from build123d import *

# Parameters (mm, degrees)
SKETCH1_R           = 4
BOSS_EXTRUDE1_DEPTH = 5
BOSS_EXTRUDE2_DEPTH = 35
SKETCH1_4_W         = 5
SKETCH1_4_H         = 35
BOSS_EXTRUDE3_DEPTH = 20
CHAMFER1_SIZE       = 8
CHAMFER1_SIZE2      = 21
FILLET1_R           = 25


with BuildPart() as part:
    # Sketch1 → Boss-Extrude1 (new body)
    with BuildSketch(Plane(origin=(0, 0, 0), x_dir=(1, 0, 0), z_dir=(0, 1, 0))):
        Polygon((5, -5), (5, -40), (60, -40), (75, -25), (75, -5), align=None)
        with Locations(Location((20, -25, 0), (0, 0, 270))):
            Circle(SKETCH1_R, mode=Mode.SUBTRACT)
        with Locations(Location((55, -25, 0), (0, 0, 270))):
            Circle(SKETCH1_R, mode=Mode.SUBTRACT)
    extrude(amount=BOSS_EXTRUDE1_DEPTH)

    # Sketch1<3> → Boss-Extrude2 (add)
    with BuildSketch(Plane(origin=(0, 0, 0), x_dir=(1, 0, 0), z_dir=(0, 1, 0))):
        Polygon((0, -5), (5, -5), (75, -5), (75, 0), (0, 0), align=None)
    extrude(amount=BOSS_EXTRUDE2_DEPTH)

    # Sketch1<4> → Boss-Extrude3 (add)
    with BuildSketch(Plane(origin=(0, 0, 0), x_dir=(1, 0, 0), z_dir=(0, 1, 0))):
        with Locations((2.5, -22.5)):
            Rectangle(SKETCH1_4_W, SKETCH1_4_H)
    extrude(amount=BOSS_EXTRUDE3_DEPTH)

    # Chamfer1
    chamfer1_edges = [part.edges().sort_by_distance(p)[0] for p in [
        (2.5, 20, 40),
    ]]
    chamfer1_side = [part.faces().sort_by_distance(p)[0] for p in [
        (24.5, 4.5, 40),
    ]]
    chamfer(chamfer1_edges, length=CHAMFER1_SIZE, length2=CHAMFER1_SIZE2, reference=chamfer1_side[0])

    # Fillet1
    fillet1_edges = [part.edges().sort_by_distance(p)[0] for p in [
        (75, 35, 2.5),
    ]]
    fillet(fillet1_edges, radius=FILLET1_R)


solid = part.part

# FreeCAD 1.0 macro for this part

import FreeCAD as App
import Part
import Sketcher
from FreeCAD import Vector


def edges_at(feature, points):
    """Names of the edges that pass closest to the given points."""
    edges = feature.Shape.Edges
    near = lambda p: min(range(len(edges)), key=lambda i: edges[i].distToShape(Part.Vertex(*p))[0])
    return sorted({f"Edge{near(p) + 1}" for p in points})

doc = App.newDocument("Part")
body = doc.addObject("PartDesign::Body", "Body")

# Sketch on XZ plane
sketch1 = doc.addObject("Sketcher::SketchObject", "Sketch")
body.addObject(sketch1)
sketch1.AttachmentSupport = (doc.XZ_Plane, [""])
sketch1.MapMode = "FlatFace"
sketch1.addGeometry(Part.LineSegment(Vector(5, 5, 0), Vector(5, 40, 0)), False)
sketch1.addGeometry(Part.LineSegment(Vector(5, 40, 0), Vector(60, 40, 0)), False)
sketch1.addGeometry(Part.LineSegment(Vector(60, 40, 0), Vector(75, 25, 0)), False)
sketch1.addGeometry(Part.LineSegment(Vector(75, 25, 0), Vector(75, 5, 0)), False)
sketch1.addGeometry(Part.LineSegment(Vector(75, 5, 0), Vector(5, 5, 0)), False)
sketch1.addGeometry(Part.Circle(Vector(20, 25, 0), Vector(0, 0, 1), 4), False)
sketch1.addGeometry(Part.Circle(Vector(55, 25, 0), Vector(0, 0, 1), 4), False)
sketch1.addConstraint(Sketcher.Constraint("Coincident", 0, 2, 1, 1))
sketch1.addConstraint(Sketcher.Constraint("Coincident", 1, 2, 2, 1))
sketch1.addConstraint(Sketcher.Constraint("Coincident", 2, 2, 3, 1))
sketch1.addConstraint(Sketcher.Constraint("Coincident", 3, 2, 4, 1))
sketch1.addConstraint(Sketcher.Constraint("Coincident", 4, 2, 0, 1))
sketch1.addConstraint(Sketcher.Constraint("Vertical", 0))
sketch1.addConstraint(Sketcher.Constraint("Horizontal", 1))
sketch1.addConstraint(Sketcher.Constraint("Vertical", 3))
sketch1.addConstraint(Sketcher.Constraint("Horizontal", 4))
sketch1.addConstraint(Sketcher.Constraint("Equal", 5, 6))
sketch1.addConstraint(Sketcher.Constraint("Horizontal", 5, 3, 6, 3))
sketch1.addConstraint(Sketcher.Constraint("Horizontal", 6, 3, 2, 2))
sketch1.addConstraint(Sketcher.Constraint("Diameter", 5, 8.0))
sketch1.addConstraint(Sketcher.Constraint("DistanceX", 1, 1, 1, 2, 55.0))
sketch1.addConstraint(Sketcher.Constraint("DistanceX", 4, 2, 4, 1, 70.0))
sketch1.addConstraint(Sketcher.Constraint("DistanceY", 0, 1, 0, 2, 35.0))
sketch1.addConstraint(Sketcher.Constraint("DistanceY", 3, 2, 3, 1, 20.0))
sketch1.addConstraint(Sketcher.Constraint("DistanceX", -1, 1, 5, 3, 20.0))
sketch1.addConstraint(Sketcher.Constraint("DistanceY", -1, 1, 5, 3, 25.0))
sketch1.addConstraint(Sketcher.Constraint("DistanceX", -1, 1, 6, 3, 55.0))
sketch1.addConstraint(Sketcher.Constraint("DistanceX", -1, 1, 0, 2, 5.0))
pad1 = doc.addObject("PartDesign::Pad", "Pad")
body.addObject(pad1)
pad1.Profile = sketch1
pad1.Length = 5
pad1.Reversed = True

# Sketch on XZ plane
sketch2 = doc.addObject("Sketcher::SketchObject", "Sketch001")
body.addObject(sketch2)
sketch2.AttachmentSupport = (doc.XZ_Plane, [""])
sketch2.MapMode = "FlatFace"
sketch2.addGeometry(Part.LineSegment(Vector(0, 5, 0), Vector(75, 5, 0)), False)
sketch2.addGeometry(Part.LineSegment(Vector(75, 5, 0), Vector(75, 0, 0)), False)
sketch2.addGeometry(Part.LineSegment(Vector(75, 0, 0), Vector(0, 0, 0)), False)
sketch2.addGeometry(Part.LineSegment(Vector(0, 0, 0), Vector(0, 5, 0)), False)
sketch2.addConstraint(Sketcher.Constraint("Coincident", 0, 2, 1, 1))
sketch2.addConstraint(Sketcher.Constraint("Coincident", 1, 2, 2, 1))
sketch2.addConstraint(Sketcher.Constraint("Coincident", 2, 2, 3, 1))
sketch2.addConstraint(Sketcher.Constraint("Coincident", 3, 2, 0, 1))
sketch2.addConstraint(Sketcher.Constraint("Horizontal", 0))
sketch2.addConstraint(Sketcher.Constraint("Vertical", 1))
sketch2.addConstraint(Sketcher.Constraint("Horizontal", 2))
sketch2.addConstraint(Sketcher.Constraint("Vertical", 3))
sketch2.addConstraint(Sketcher.Constraint("Coincident", 2, 2, -1, 1))
sketch2.addConstraint(Sketcher.Constraint("DistanceX", 0, 1, 0, 2, 75.0))
sketch2.addConstraint(Sketcher.Constraint("DistanceY", 1, 2, 1, 1, 5.0))
pad2 = doc.addObject("PartDesign::Pad", "Pad001")
body.addObject(pad2)
pad2.Profile = sketch2
pad2.Length = 35
pad2.Reversed = True

# Sketch on XZ plane
sketch3 = doc.addObject("Sketcher::SketchObject", "Sketch002")
body.addObject(sketch3)
sketch3.AttachmentSupport = (doc.XZ_Plane, [""])
sketch3.MapMode = "FlatFace"
sketch3.addGeometry(Part.LineSegment(Vector(0, 5, 0), Vector(0, 40, 0)), False)
sketch3.addGeometry(Part.LineSegment(Vector(0, 40, 0), Vector(5, 40, 0)), False)
sketch3.addGeometry(Part.LineSegment(Vector(5, 40, 0), Vector(5, 5, 0)), False)
sketch3.addGeometry(Part.LineSegment(Vector(5, 5, 0), Vector(0, 5, 0)), False)
sketch3.addConstraint(Sketcher.Constraint("Coincident", 0, 2, 1, 1))
sketch3.addConstraint(Sketcher.Constraint("Coincident", 1, 2, 2, 1))
sketch3.addConstraint(Sketcher.Constraint("Coincident", 2, 2, 3, 1))
sketch3.addConstraint(Sketcher.Constraint("Coincident", 3, 2, 0, 1))
sketch3.addConstraint(Sketcher.Constraint("Vertical", 0))
sketch3.addConstraint(Sketcher.Constraint("Horizontal", 1))
sketch3.addConstraint(Sketcher.Constraint("Vertical", 2))
sketch3.addConstraint(Sketcher.Constraint("Horizontal", 3))
sketch3.addConstraint(Sketcher.Constraint("PointOnObject", 0, 2, -2))
sketch3.addConstraint(Sketcher.Constraint("DistanceX", 1, 1, 1, 2, 5.0))
sketch3.addConstraint(Sketcher.Constraint("DistanceY", 0, 1, 0, 2, 35.0))
sketch3.addConstraint(Sketcher.Constraint("DistanceY", -1, 1, 0, 2, 40.0))
pad3 = doc.addObject("PartDesign::Pad", "Pad002")
body.addObject(pad3)
pad3.Profile = sketch3
pad3.Length = 20
pad3.Reversed = True
doc.recompute()

chamfer = doc.addObject("PartDesign::Chamfer", "Chamfer")
body.addObject(chamfer)
chamfer.Base = (pad3, edges_at(pad3, [(2.5, 20, 40)]))
chamfer.ChamferType = "Two distances"
chamfer.Size = 8
chamfer.Size2 = 21
chamfer.FlipDirection = True
doc.recompute()

fillet = doc.addObject("PartDesign::Fillet", "Fillet")
body.addObject(fillet)
fillet.Base = (chamfer, edges_at(chamfer, [(75, 35, 2.5)]))
fillet.Radius = 25

doc.recompute()
